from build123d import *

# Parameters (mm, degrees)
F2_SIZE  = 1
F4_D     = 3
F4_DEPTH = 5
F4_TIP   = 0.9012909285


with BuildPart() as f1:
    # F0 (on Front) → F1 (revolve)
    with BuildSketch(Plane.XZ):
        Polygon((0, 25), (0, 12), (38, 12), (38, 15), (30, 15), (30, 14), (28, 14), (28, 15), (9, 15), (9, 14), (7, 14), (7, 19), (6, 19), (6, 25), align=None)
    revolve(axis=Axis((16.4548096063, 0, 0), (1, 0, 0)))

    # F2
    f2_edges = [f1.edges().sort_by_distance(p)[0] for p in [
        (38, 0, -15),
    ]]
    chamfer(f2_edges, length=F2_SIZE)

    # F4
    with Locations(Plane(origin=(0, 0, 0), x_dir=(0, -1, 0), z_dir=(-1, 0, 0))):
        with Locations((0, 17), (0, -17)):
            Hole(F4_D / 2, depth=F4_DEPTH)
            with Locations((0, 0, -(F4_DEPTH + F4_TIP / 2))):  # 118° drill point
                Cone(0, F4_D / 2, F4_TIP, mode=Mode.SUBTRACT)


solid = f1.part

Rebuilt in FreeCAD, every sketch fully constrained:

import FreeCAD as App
import Part
import Sketcher

V = App.Vector
Q = App.Units.Quantity


def edges_at(feature, points):
    """Names of the edges that pass closest to the given points."""
    edges = feature.Shape.Edges
    near = lambda p: min(range(len(edges)), key=lambda i: edges[i].distToShape(Part.Vertex(*p))[0])
    return sorted({f"Edge{near(p) + 1}" for p in points})

doc = App.newDocument("Part")
params = doc.addObject("Spreadsheet::Sheet", "Params")
for row, (alias, value) in enumerate([
    ("sketch1_width", "38 mm"),
    ("sketch1_width2", "8 mm"),
    ("sketch1_width3", "2 mm"),
    ("sketch1_width4", "19 mm"),
    ("sketch1_width5", "1 mm"),
    ("revolution_angle", "360 deg"),
    ("chamfer_size", "1 mm"),
    ("sketch2_diameter", "3 mm"),
    ("hole_diameter", "3 mm"),
    ("hole_depth", "5 mm"),
], start=1):
    params.set(f"A{row}", alias)
    params.set(f"B{row}", "=" + value)
    params.setAlias(f"B{row}", alias)

body = doc.addObject("PartDesign::Body", "Body")

sketch1 = doc.addObject("Sketcher::SketchObject", "Sketch")
body.addObject(sketch1)
sketch1.AttachmentSupport = (doc.XZ_Plane, [""])
sketch1.MapMode = "FlatFace"
sketch1.addGeometry([
    Part.LineSegment(V(0, 25, 0), V(0, 12, 0)),
    Part.LineSegment(V(0, 12, 0), V(38, 12, 0)),
    Part.LineSegment(V(38, 12, 0), V(38, 15, 0)),
    Part.LineSegment(V(38, 15, 0), V(30, 15, 0)),
    Part.LineSegment(V(30, 15, 0), V(30, 14, 0)),
    Part.LineSegment(V(30, 14, 0), V(28, 14, 0)),
    Part.LineSegment(V(28, 14, 0), V(28, 15, 0)),
    Part.LineSegment(V(28, 15, 0), V(9, 15, 0)),
    Part.LineSegment(V(9, 15, 0), V(9, 14, 0)),
    Part.LineSegment(V(9, 14, 0), V(7, 14, 0)),
    Part.LineSegment(V(7, 14, 0), V(7, 19, 0)),
    Part.LineSegment(V(7, 19, 0), V(6, 19, 0)),
    Part.LineSegment(V(6, 19, 0), V(6, 25, 0)),
    Part.LineSegment(V(6, 25, 0), V(0, 25, 0)),
], False)
sketch1.addConstraint([
    Sketcher.Constraint("Coincident", 0, 2, 1, 1),
    Sketcher.Constraint("Coincident", 1, 2, 2, 1),
    Sketcher.Constraint("Coincident", 2, 2, 3, 1),
    Sketcher.Constraint("Coincident", 3, 2, 4, 1),
    Sketcher.Constraint("Coincident", 4, 2, 5, 1),
    Sketcher.Constraint("Coincident", 5, 2, 6, 1),
    Sketcher.Constraint("Coincident", 6, 2, 7, 1),
    Sketcher.Constraint("Coincident", 7, 2, 8, 1),
    Sketcher.Constraint("Coincident", 8, 2, 9, 1),
    Sketcher.Constraint("Coincident", 9, 2, 10, 1),
    Sketcher.Constraint("Coincident", 10, 2, 11, 1),
    Sketcher.Constraint("Coincident", 11, 2, 12, 1),
    Sketcher.Constraint("Coincident", 12, 2, 13, 1),
    Sketcher.Constraint("Coincident", 13, 2, 0, 1),
    Sketcher.Constraint("Vertical", 0),
    Sketcher.Constraint("Horizontal", 1),
    Sketcher.Constraint("Vertical", 2),
    Sketcher.Constraint("Horizontal", 3),
    Sketcher.Constraint("Vertical", 4),
    Sketcher.Constraint("Horizontal", 5),
    Sketcher.Constraint("Vertical", 6),
    Sketcher.Constraint("Horizontal", 7),
    Sketcher.Constraint("Vertical", 8),
    Sketcher.Constraint("Horizontal", 9),
    Sketcher.Constraint("Vertical", 10),
    Sketcher.Constraint("Horizontal", 11),
    Sketcher.Constraint("Vertical", 12),
    Sketcher.Constraint("Horizontal", 13),
    Sketcher.Constraint("PointOnObject", 0, 2, -2),
    Sketcher.Constraint("Horizontal", 3, 2, 6, 2),
    Sketcher.Constraint("Horizontal", 5, 2, 8, 2),
    Sketcher.Constraint("Equal", 5, 9),
    Sketcher.Constraint("Equal", 11, 4),
    Sketcher.Constraint("Equal", 13, 12),
    Sketcher.Constraint("DistanceX", 1, 1, 1, 2, Q("38 mm")),
    Sketcher.Constraint("DistanceX", 3, 2, 3, 1, Q("8 mm")),
    Sketcher.Constraint("DistanceX", 5, 2, 5, 1, Q("2 mm")),
    Sketcher.Constraint("DistanceX", 7, 2, 7, 1, Q("19 mm")),
    Sketcher.Constraint("DistanceX", 11, 2, 11, 1, Q("1 mm")),
    Sketcher.Constraint("DistanceY", 0, 2, 0, 1, Q("13 mm")),
    Sketcher.Constraint("DistanceY", 2, 1, 2, 2, Q("3 mm")),
    Sketcher.Constraint("DistanceY", -1, 1, 0, 2, Q("12 mm")),
])
sketch1.setExpression("Constraints[34]", "Params.sketch1_width")
sketch1.setExpression("Constraints[35]", "Params.sketch1_width2")
sketch1.setExpression("Constraints[36]", "Params.sketch1_width3")
sketch1.setExpression("Constraints[37]", "Params.sketch1_width4")
sketch1.setExpression("Constraints[38]", "Params.sketch1_width5")
revolution = doc.addObject("PartDesign::Revolution", "Revolution")
body.addObject(revolution)
revolution.Profile = sketch1
revolution.ReferenceAxis = (sketch1, ["H_Axis"])
revolution.setExpression("Angle", "Params.revolution_angle")
doc.recompute()

chamfer = doc.addObject("PartDesign::Chamfer", "Chamfer")
body.addObject(chamfer)
chamfer.Base = (revolution, edges_at(revolution, [(38, 0, -15)]))
chamfer.setExpression("Size", "Params.chamfer_size")

sketch2 = doc.addObject("Sketcher::SketchObject", "Sketch001")
body.addObject(sketch2)
sketch2.AttachmentSupport = (doc.YZ_Plane, [""])
sketch2.MapMode = "FlatFace"
sketch2.addGeometry([
    Part.Circle(V(0, 17, 0), V(0, 0, 1), 1.5),
    Part.Circle(V(0, -17, 0), V(0, 0, 1), 1.5),
], False)
sketch2.addConstraint([
    Sketcher.Constraint("Equal", 0, 1),
    Sketcher.Constraint("Symmetric", 0, 3, 1, 3, -1, 1),
    Sketcher.Constraint("PointOnObject", 0, 3, -2),
    Sketcher.Constraint("Diameter", 0, Q("3 mm")),
    Sketcher.Constraint("DistanceY", -1, 1, 0, 3, Q("17 mm")),
])
sketch2.setExpression("Constraints[3]", "Params.sketch2_diameter")
doc.recompute()
hole = doc.addObject("PartDesign::Hole", "Hole")
body.addObject(hole)
hole.Profile = sketch2
hole.ThreadType = "None"
hole.setExpression("Diameter", "Params.hole_diameter")
hole.DepthType = "Dimension"
hole.setExpression("Depth", "Params.hole_depth")
hole.DrillPoint = "Angled"
hole.DrillPointAngle = 118
hole.Reversed = True

doc.recompute()
